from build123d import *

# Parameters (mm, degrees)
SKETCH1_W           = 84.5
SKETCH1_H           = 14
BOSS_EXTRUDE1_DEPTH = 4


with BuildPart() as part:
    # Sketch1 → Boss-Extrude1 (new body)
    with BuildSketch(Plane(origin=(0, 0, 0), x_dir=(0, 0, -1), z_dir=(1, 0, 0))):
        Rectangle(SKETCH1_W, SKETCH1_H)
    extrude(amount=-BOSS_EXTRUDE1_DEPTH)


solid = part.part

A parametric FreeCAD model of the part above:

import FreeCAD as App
import Part
import Sketcher

V = App.Vector


def add_polygon(sketch, points):
    """Adds a closed chain of lines whose ends are joined by coincident constraints."""
    first, n = sketch.GeometryCount, len(points)
    for a, b in zip(points, points[1:] + points[:1]):
        sketch.addGeometry(Part.LineSegment(App.Vector(*a, 0), App.Vector(*b, 0)), False)
    for i in range(n):
        sketch.addConstraint(Sketcher.Constraint("Coincident", first + i, 2, first + (i + 1) % n, 1))

doc = App.newDocument("Part")
body = doc.addObject("PartDesign::Body", "Body")

# Sketch on YZ plane
sketch1 = body.newObject("Sketcher::SketchObject", "Sketch")
sketch1.AttachmentSupport = (doc.getObject("YZ_Plane"), [""])
sketch1.MapMode = "FlatFace"
add_polygon(sketch1, [(7, 42.25), (-7, 42.25), (-7, -42.25), (7, -42.25)])  # lines 0-3
sketch1.addConstraint([
    Sketcher.Constraint("Horizontal", 0),
    Sketcher.Constraint("Vertical", 1),
    Sketcher.Constraint("Horizontal", 2),
    Sketcher.Constraint("Vertical", 3),
    Sketcher.Constraint("Symmetric", 0, 2, 2, 2, -1, 1),
    Sketcher.Constraint("DistanceX", 0, 2, 0, 1, 14.0),
    Sketcher.Constraint("DistanceY", 1, 2, 1, 1, 84.5),
])
pad1 = body.newObject("PartDesign::Pad", "Pad")
pad1.Profile = sketch1
pad1.Length = 4
pad1.Reversed = True

doc.recompute()
